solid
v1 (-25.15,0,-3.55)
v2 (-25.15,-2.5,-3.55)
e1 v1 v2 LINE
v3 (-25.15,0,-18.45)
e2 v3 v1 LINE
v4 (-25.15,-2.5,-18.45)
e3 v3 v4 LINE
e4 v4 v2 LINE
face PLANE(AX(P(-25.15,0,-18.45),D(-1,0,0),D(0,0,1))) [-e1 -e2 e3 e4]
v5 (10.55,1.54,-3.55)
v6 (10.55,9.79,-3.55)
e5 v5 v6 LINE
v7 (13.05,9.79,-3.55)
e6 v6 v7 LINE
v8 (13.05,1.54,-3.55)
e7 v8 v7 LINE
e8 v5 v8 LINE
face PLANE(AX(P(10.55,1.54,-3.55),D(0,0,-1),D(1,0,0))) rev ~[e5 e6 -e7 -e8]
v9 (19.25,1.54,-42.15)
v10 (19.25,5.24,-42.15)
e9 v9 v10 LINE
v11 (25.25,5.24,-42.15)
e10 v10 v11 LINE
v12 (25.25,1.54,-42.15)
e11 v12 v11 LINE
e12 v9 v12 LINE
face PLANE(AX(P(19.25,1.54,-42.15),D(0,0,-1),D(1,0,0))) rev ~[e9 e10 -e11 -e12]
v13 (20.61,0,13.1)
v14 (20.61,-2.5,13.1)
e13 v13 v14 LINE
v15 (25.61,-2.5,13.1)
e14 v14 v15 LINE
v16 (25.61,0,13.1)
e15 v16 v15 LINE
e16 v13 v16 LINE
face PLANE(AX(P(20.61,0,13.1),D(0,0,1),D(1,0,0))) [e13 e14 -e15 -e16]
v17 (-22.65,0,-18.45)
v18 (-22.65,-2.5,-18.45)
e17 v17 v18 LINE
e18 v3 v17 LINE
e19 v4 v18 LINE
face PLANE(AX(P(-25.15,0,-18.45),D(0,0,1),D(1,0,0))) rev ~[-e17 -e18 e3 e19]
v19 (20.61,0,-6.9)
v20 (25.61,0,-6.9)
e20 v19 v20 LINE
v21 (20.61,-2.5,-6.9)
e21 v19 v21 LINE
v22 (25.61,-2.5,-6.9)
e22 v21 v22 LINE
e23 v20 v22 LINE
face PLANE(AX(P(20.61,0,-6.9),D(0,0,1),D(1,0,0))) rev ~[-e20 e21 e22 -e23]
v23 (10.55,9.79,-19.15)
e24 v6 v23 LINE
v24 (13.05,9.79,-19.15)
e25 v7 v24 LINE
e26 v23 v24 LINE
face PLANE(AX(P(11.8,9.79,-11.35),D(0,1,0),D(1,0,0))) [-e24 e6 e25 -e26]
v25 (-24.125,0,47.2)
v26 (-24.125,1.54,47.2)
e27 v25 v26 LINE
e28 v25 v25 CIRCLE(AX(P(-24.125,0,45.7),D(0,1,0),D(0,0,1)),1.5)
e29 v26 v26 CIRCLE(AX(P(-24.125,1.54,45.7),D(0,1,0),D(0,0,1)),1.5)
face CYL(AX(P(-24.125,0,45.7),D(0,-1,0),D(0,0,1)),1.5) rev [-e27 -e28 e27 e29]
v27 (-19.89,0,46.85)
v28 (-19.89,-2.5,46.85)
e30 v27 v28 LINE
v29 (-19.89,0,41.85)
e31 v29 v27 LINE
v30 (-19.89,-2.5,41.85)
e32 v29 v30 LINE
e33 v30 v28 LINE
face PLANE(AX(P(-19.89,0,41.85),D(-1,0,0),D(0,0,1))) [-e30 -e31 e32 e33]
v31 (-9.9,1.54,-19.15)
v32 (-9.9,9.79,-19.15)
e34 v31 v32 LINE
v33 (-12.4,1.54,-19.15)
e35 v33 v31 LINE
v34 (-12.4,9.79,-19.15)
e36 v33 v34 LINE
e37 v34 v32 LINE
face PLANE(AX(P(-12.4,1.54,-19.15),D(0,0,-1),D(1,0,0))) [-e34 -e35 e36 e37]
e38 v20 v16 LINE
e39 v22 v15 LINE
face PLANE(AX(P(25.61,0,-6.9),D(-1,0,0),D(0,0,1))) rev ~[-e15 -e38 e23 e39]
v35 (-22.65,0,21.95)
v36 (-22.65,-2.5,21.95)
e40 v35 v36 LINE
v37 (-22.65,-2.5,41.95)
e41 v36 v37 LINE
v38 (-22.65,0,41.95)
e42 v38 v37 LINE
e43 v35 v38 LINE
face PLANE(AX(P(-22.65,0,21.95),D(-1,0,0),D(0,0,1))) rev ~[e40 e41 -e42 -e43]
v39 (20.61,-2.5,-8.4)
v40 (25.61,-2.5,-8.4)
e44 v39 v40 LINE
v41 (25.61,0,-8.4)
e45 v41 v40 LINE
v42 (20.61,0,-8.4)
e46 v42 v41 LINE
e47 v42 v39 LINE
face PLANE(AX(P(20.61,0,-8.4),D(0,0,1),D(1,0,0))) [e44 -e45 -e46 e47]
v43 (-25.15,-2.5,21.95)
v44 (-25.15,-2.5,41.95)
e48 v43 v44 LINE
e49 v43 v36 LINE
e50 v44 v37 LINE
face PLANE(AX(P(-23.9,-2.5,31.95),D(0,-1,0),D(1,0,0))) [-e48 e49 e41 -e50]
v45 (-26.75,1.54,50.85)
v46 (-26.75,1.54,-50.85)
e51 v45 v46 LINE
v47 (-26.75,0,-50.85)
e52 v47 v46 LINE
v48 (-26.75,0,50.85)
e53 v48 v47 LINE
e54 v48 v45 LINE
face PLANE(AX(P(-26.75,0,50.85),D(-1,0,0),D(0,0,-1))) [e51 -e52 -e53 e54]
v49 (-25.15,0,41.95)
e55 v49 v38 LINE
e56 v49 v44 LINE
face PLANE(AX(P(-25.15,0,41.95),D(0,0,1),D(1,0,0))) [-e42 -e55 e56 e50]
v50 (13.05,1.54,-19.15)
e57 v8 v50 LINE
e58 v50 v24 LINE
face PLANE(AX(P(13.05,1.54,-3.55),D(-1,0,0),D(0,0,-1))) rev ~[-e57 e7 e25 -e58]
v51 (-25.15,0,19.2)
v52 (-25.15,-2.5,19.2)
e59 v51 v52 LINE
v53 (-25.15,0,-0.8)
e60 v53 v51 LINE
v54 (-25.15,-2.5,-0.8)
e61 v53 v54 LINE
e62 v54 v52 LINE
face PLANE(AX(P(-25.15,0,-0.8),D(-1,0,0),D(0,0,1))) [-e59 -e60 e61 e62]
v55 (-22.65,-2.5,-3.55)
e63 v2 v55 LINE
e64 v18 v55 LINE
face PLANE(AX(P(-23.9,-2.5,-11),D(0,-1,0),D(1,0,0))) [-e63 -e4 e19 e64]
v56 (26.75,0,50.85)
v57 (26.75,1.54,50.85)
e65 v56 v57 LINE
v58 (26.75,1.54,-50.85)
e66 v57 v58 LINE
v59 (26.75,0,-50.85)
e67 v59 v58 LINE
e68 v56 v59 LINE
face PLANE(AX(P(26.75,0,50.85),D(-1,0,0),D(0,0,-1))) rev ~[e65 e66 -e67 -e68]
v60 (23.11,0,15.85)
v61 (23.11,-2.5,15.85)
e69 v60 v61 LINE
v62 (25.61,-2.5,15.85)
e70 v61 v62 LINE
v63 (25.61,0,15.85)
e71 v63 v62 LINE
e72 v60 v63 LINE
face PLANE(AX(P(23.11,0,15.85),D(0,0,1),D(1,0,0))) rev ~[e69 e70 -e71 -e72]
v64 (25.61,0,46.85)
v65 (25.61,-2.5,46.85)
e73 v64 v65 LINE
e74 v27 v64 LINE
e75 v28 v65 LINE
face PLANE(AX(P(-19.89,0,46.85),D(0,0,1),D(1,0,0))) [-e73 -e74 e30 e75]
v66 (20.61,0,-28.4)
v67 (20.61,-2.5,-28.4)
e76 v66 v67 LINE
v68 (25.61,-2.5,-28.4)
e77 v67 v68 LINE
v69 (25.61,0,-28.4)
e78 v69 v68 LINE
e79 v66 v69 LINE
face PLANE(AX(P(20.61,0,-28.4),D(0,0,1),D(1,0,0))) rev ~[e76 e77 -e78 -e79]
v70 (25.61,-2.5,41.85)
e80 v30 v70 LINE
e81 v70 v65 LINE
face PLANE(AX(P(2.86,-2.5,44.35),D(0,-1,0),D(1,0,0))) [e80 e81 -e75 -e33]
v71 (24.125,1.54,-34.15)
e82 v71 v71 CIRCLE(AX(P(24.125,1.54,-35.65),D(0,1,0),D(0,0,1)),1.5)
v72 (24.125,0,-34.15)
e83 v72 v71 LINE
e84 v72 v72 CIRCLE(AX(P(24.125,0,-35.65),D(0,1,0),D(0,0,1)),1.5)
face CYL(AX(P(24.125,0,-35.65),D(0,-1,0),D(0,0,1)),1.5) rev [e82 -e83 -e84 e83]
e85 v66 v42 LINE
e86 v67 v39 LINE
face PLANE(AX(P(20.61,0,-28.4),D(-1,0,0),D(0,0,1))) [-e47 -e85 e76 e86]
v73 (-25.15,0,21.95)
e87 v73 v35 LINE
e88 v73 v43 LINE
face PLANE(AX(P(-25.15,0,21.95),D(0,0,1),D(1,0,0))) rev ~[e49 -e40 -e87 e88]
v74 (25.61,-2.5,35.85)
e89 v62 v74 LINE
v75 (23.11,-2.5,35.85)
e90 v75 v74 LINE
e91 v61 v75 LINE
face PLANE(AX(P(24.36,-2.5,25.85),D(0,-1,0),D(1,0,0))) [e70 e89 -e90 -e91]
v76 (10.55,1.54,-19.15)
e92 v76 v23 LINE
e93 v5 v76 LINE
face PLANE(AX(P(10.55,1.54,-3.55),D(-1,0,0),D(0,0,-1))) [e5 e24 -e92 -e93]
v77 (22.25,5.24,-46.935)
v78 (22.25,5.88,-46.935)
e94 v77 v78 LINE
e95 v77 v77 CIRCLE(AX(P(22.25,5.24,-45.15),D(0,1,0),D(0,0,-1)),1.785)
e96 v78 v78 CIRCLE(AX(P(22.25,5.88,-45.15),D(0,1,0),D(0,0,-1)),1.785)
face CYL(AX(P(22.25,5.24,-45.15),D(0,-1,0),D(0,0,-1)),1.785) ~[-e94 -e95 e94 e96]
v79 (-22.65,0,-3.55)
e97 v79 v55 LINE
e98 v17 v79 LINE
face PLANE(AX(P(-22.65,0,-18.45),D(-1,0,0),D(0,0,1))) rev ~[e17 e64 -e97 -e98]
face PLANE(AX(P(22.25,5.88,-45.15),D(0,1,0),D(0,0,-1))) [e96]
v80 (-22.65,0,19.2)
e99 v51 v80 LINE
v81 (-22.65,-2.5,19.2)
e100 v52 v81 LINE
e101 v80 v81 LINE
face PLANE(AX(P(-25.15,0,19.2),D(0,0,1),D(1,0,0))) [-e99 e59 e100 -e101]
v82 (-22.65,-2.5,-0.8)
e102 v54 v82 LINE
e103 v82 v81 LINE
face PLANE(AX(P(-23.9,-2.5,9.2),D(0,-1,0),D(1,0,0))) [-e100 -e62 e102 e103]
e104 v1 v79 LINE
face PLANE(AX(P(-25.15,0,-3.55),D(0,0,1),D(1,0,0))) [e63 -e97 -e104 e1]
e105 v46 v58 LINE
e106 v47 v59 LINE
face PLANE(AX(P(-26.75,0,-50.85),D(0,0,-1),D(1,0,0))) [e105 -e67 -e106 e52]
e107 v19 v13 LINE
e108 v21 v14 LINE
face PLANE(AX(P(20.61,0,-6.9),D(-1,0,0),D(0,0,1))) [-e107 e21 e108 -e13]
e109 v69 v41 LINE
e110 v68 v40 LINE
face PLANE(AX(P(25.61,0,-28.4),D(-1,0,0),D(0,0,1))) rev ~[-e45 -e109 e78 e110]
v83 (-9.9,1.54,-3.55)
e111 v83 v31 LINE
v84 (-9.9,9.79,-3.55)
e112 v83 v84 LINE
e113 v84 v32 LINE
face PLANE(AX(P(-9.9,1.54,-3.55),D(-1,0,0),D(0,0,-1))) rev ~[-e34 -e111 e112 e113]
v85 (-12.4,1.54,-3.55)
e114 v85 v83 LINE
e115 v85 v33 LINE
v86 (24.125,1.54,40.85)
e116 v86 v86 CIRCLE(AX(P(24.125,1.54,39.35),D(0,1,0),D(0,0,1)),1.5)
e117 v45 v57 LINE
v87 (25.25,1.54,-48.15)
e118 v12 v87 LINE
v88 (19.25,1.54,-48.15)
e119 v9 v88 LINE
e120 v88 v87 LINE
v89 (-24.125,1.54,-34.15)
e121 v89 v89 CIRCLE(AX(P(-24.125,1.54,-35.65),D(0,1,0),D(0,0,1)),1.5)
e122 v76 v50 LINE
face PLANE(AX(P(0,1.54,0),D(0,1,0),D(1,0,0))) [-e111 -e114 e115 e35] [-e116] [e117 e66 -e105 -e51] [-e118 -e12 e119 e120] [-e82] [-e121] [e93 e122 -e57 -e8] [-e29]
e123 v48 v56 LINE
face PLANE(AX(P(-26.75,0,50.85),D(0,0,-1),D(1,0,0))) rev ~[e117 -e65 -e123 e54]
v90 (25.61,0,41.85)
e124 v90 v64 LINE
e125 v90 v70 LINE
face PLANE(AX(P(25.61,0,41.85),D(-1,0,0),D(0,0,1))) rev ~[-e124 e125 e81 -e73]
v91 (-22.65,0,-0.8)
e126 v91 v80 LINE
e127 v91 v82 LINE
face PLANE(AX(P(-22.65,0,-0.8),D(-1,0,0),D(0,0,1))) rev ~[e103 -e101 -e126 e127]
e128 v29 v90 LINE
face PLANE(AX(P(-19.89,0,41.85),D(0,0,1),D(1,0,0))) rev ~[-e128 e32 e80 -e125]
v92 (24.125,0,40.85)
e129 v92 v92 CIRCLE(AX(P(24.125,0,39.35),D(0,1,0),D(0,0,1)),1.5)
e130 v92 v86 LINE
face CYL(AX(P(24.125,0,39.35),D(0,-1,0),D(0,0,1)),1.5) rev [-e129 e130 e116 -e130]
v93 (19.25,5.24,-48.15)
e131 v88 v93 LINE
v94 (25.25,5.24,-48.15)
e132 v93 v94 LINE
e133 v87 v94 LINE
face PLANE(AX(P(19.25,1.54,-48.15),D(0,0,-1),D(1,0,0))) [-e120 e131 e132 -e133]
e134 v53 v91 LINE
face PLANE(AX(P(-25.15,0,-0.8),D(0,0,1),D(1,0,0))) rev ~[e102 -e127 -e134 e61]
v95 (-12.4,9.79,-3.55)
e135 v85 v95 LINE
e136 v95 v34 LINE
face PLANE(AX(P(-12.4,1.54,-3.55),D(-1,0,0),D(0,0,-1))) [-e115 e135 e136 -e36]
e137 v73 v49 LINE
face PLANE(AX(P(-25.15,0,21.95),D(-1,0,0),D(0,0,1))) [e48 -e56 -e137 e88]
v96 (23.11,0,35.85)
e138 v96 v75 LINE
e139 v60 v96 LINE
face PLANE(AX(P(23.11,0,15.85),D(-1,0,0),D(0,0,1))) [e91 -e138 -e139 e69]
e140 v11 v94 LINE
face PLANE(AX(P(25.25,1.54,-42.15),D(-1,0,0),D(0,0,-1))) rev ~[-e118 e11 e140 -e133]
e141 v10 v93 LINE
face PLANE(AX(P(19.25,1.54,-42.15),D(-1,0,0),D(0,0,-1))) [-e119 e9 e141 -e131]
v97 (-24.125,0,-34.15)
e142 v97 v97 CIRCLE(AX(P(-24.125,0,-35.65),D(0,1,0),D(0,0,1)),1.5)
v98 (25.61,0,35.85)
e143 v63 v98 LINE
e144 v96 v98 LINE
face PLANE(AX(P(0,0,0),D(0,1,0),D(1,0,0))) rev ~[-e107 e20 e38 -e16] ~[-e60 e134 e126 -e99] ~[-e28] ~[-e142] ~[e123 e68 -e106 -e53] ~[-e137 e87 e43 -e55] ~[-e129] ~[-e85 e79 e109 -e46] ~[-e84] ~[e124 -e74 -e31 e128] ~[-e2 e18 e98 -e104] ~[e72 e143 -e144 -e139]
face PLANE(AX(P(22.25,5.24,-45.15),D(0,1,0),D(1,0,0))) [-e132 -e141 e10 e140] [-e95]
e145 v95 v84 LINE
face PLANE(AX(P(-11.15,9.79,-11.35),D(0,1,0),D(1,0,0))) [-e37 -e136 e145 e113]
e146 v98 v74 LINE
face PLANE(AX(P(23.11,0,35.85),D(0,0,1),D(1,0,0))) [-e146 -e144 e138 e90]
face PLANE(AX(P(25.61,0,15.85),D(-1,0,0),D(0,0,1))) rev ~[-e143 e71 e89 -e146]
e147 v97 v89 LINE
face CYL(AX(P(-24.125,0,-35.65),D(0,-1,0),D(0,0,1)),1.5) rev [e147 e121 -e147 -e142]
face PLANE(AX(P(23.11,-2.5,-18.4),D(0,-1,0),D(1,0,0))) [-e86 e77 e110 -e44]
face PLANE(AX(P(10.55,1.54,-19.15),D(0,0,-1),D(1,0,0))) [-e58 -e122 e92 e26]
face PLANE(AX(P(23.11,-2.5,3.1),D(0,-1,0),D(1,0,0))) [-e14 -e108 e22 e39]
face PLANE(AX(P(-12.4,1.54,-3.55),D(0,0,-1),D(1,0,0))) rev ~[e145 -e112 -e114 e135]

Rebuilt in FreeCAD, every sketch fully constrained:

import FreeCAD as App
import Part
import Sketcher

V = App.Vector

doc = App.newDocument("Part")
body = doc.addObject("PartDesign::Body", "Body")

sketch1 = body.newObject("Sketcher::SketchObject", "Sketch")
sketch1.AttachmentSupport = (doc.getObject("XZ_Plane"), [""])
sketch1.MapMode = "FlatFace"
sketch1.addGeometry([
    Part.LineSegment(V(-26.8, -50.9, 0), V(-26.8, 50.9, 0)),
    Part.LineSegment(V(-26.8, 50.9, 0), V(26.8, 50.9, 0)),
    Part.LineSegment(V(26.8, 50.9, 0), V(26.8, -50.9, 0)),
    Part.LineSegment(V(26.8, -50.9, 0), V(-26.8, -50.9, 0)),
    Part.Circle(V(-24.1, 45.7, 0), V(0, 0, 1), 1.5),
    Part.Circle(V(24.1, 39.4, 0), V(0, 0, 1), 1.5),
    Part.Circle(V(-24.1, -35.6, 0), V(0, 0, 1), 1.5),
    Part.Circle(V(24.1, -35.6, 0), V(0, 0, 1), 1.5),
], False)
sketch1.addConstraint([
    Sketcher.Constraint("Coincident", 0, 2, 1, 1),
    Sketcher.Constraint("Coincident", 1, 2, 2, 1),
    Sketcher.Constraint("Coincident", 2, 2, 3, 1),
    Sketcher.Constraint("Coincident", 3, 2, 0, 1),
    Sketcher.Constraint("Vertical", 0),
    Sketcher.Constraint("Horizontal", 1),
    Sketcher.Constraint("Vertical", 2),
    Sketcher.Constraint("Horizontal", 3),
    Sketcher.Constraint("Equal", 4, 5),
    Sketcher.Constraint("Equal", 5, 6),
    Sketcher.Constraint("Equal", 6, 7),
    Sketcher.Constraint("Symmetric", 0, 2, 2, 2, -1, 1),
    Sketcher.Constraint("Symmetric", 6, 3, 7, 3, -2),
    Sketcher.Constraint("Vertical", 4, 3, 6, 3),
    Sketcher.Constraint("Vertical", 5, 3, 7, 3),
    Sketcher.Constraint("Diameter", 4, 3.0),
    Sketcher.Constraint("DistanceX", 1, 1, 1, 2, 53.5),
    Sketcher.Constraint("DistanceY", 0, 1, 0, 2, 101.7),
    Sketcher.Constraint("DistanceY", 6, 3, 5, 3, 75.0),
    Sketcher.Constraint("DistanceY", -1, 1, 4, 3, 45.7),
    Sketcher.Constraint("DistanceY", 5, 3, 0, 2, 11.5),
    Sketcher.Constraint("DistanceX", 4, 3, 5, 3, 48.25),
])
pad1 = body.newObject("PartDesign::Pad", "Pad")
pad1.Profile = sketch1
pad1.Length = 1.54
pad1.Reversed = True

sketch2 = body.newObject("Sketcher::SketchObject", "Sketch001")
sketch2.AttachmentSupport = (doc.getObject("XZ_Plane"), [""])
sketch2.MapMode = "FlatFace"
sketch2.AttachmentOffset = App.Placement(V(0, 0, -1.54), App.Rotation())
sketch2.addGeometry([
    Part.LineSegment(V(10.6, -19.1, 0), V(10.6, -3.5, 0)),
    Part.LineSegment(V(10.6, -3.5, 0), V(13.1, -3.5, 0)),
    Part.LineSegment(V(13.1, -3.5, 0), V(13.1, -19.1, 0)),
    Part.LineSegment(V(13.1, -19.1, 0), V(10.6, -19.1, 0)),
    Part.LineSegment(V(-12.4, -19.1, 0), V(-12.4, -3.5, 0)),
    Part.LineSegment(V(-12.4, -3.5, 0), V(-9.9, -3.5, 0)),
    Part.LineSegment(V(-9.9, -3.5, 0), V(-9.9, -19.1, 0)),
    Part.LineSegment(V(-9.9, -19.1, 0), V(-12.4, -19.1, 0)),
], False)
sketch2.addConstraint([
    Sketcher.Constraint("Coincident", 0, 2, 1, 1),
    Sketcher.Constraint("Coincident", 1, 2, 2, 1),
    Sketcher.Constraint("Coincident", 2, 2, 3, 1),
    Sketcher.Constraint("Coincident", 3, 2, 0, 1),
    Sketcher.Constraint("Coincident", 4, 2, 5, 1),
    Sketcher.Constraint("Coincident", 5, 2, 6, 1),
    Sketcher.Constraint("Coincident", 6, 2, 7, 1),
    Sketcher.Constraint("Coincident", 7, 2, 4, 1),
    Sketcher.Constraint("Vertical", 0),
    Sketcher.Constraint("Horizontal", 1),
    Sketcher.Constraint("Vertical", 2),
    Sketcher.Constraint("Horizontal", 3),
    Sketcher.Constraint("Vertical", 4),
    Sketcher.Constraint("Horizontal", 5),
    Sketcher.Constraint("Vertical", 6),
    Sketcher.Constraint("Horizontal", 7),
    Sketcher.Constraint("Horizontal", 1, 2, 4, 2),
    Sketcher.Constraint("Horizontal", 3, 2, 6, 2),
    Sketcher.Constraint("Equal", 3, 5),
    Sketcher.Constraint("DistanceX", 1, 1, 1, 2, 2.5),
    Sketcher.Constraint("DistanceY", 0, 1, 0, 2, 15.6),
    Sketcher.Constraint("DistanceX", 4, 2, -1, 1, 12.4),
    Sketcher.Constraint("DistanceX", -1, 1, 0, 2, 10.55),
    Sketcher.Constraint("DistanceY", 0, 2, -1, 1, 3.55),
])
pad2 = body.newObject("PartDesign::Pad", "Pad001")
pad2.Profile = sketch2
pad2.Length = 8.25
pad2.Reversed = True

sketch3 = body.newObject("Sketcher::SketchObject", "Sketch002")
sketch3.AttachmentSupport = (doc.getObject("XZ_Plane"), [""])
sketch3.MapMode = "FlatFace"
sketch3.AttachmentOffset = App.Placement(V(0, 0, -1.54), App.Rotation())
sketch3.addGeometry([
    Part.LineSegment(V(19, -48, 0), V(19, -42, 0)),
    Part.LineSegment(V(19, -42, 0), V(25, -42, 0)),
    Part.LineSegment(V(25, -42, 0), V(25, -48, 0)),
    Part.LineSegment(V(25, -48, 0), V(19, -48, 0)),
], False)
sketch3.addConstraint([
    Sketcher.Constraint("Coincident", 0, 2, 1, 1),
    Sketcher.Constraint("Coincident", 1, 2, 2, 1),
    Sketcher.Constraint("Coincident", 2, 2, 3, 1),
    Sketcher.Constraint("Coincident", 3, 2, 0, 1),
    Sketcher.Constraint("Vertical", 0),
    Sketcher.Constraint("Horizontal", 1),
    Sketcher.Constraint("Vertical", 2),
    Sketcher.Constraint("Horizontal", 3),
    Sketcher.Constraint("Equal", 3, 0),
    Sketcher.Constraint("DistanceX", 1, 1, 1, 2, 6.0),
    Sketcher.Constraint("DistanceX", -1, 1, 0, 2, 19.25),
    Sketcher.Constraint("DistanceY", 0, 2, -1, 1, 42.15),
])
pad3 = body.newObject("PartDesign::Pad", "Pad002")
pad3.Profile = sketch3
pad3.Length = 3.7
pad3.Reversed = True

sketch4 = body.newObject("Sketcher::SketchObject", "Sketch003")
sketch4.AttachmentSupport = (doc.getObject("XZ_Plane"), [""])
sketch4.MapMode = "FlatFace"
sketch4.AttachmentOffset = App.Placement(V(0, 0, -5.24), App.Rotation())
sketch4.addGeometry(Part.Circle(V(22.2, -45.1, 0), V(0, 0, 1), 1.8), False)
sketch4.addConstraint([
    Sketcher.Constraint("Diameter", 0, 3.57),
    Sketcher.Constraint("DistanceX", -1, 1, 0, 3, 22.25),
    Sketcher.Constraint("DistanceY", 0, 3, -1, 1, 45.15),
])
pad4 = body.newObject("PartDesign::Pad", "Pad003")
pad4.Profile = sketch4
pad4.Length = 0.64
pad4.Reversed = True

sketch5 = body.newObject("Sketcher::SketchObject", "Sketch004")
sketch5.AttachmentSupport = (doc.getObject("XZ_Plane"), [""])
sketch5.MapMode = "FlatFace"
sketch5.addGeometry([
    Part.LineSegment(V(-19.9, 46.9, 0), V(-19.9, 41.9, 0)),
    Part.LineSegment(V(-19.9, 41.9, 0), V(25.6, 41.9, 0)),
    Part.LineSegment(V(25.6, 41.9, 0), V(25.6, 46.9, 0)),
    Part.LineSegment(V(25.6, 46.9, 0), V(-19.9, 46.9, 0)),
    Part.LineSegment(V(23.1, 35.9, 0), V(23.1, 15.8, 0)),
    Part.LineSegment(V(23.1, 15.8, 0), V(25.6, 15.8, 0)),
    Part.LineSegment(V(25.6, 15.8, 0), V(25.6, 35.9, 0)),
    Part.LineSegment(V(25.6, 35.9, 0), V(23.1, 35.9, 0)),
    Part.LineSegment(V(20.6, 13.1, 0), V(20.6, -6.9, 0)),
    Part.LineSegment(V(20.6, -6.9, 0), V(25.6, -6.9, 0)),
    Part.LineSegment(V(25.6, -6.9, 0), V(25.6, 13.1, 0)),
    Part.LineSegment(V(25.6, 13.1, 0), V(20.6, 13.1, 0)),
    Part.LineSegment(V(20.6, -8.4, 0), V(20.6, -28.4, 0)),
    Part.LineSegment(V(20.6, -28.4, 0), V(25.6, -28.4, 0)),
    Part.LineSegment(V(25.6, -28.4, 0), V(25.6, -8.4, 0)),
    Part.LineSegment(V(25.6, -8.4, 0), V(20.6, -8.4, 0)),
    Part.LineSegment(V(-25.1, 42, 0), V(-25.1, 21.9, 0)),
    Part.LineSegment(V(-25.1, 21.9, 0), V(-22.6, 21.9, 0)),
    Part.LineSegment(V(-22.6, 21.9, 0), V(-22.6, 42, 0)),
    Part.LineSegment(V(-22.6, 42, 0), V(-25.1, 42, 0)),
    Part.LineSegment(V(-25.1, 19.2, 0), V(-25.1, -0.8, 0)),
    Part.LineSegment(V(-25.1, -0.8, 0), V(-22.6, -0.8, 0)),
    Part.LineSegment(V(-22.6, -0.8, 0), V(-22.6, 19.2, 0)),
    Part.LineSegment(V(-22.6, 19.2, 0), V(-25.1, 19.2, 0)),
    Part.LineSegment(V(-25.1, -3.5, 0), V(-25.1, -18.4, 0)),
    Part.LineSegment(V(-25.1, -18.4, 0), V(-22.6, -18.4, 0)),
    Part.LineSegment(V(-22.6, -18.4, 0), V(-22.6, -3.5, 0)),
    Part.LineSegment(V(-22.6, -3.5, 0), V(-25.1, -3.5, 0)),
], False)
sketch5.addConstraint([
    Sketcher.Constraint("Coincident", 0, 2, 1, 1),
    Sketcher.Constraint("Coincident", 1, 2, 2, 1),
    Sketcher.Constraint("Coincident", 2, 2, 3, 1),
    Sketcher.Constraint("Coincident", 3, 2, 0, 1),
    Sketcher.Constraint("Coincident", 4, 2, 5, 1),
    Sketcher.Constraint("Coincident", 5, 2, 6, 1),
    Sketcher.Constraint("Coincident", 6, 2, 7, 1),
    Sketcher.Constraint("Coincident", 7, 2, 4, 1),
    Sketcher.Constraint("Coincident", 8, 2, 9, 1),
    Sketcher.Constraint("Coincident", 9, 2, 10, 1),
    Sketcher.Constraint("Coincident", 10, 2, 11, 1),
    Sketcher.Constraint("Coincident", 11, 2, 8, 1),
    Sketcher.Constraint("Coincident", 12, 2, 13, 1),
    Sketcher.Constraint("Coincident", 13, 2, 14, 1),
    Sketcher.Constraint("Coincident", 14, 2, 15, 1),
    Sketcher.Constraint("Coincident", 15, 2, 12, 1),
    Sketcher.Constraint("Coincident", 16, 2, 17, 1),
    Sketcher.Constraint("Coincident", 17, 2, 18, 1),
    Sketcher.Constraint("Coincident", 18, 2, 19, 1),
    Sketcher.Constraint("Coincident", 19, 2, 16, 1),
    Sketcher.Constraint("Coincident", 20, 2, 21, 1),
    Sketcher.Constraint("Coincident", 21, 2, 22, 1),
    Sketcher.Constraint("Coincident", 22, 2, 23, 1),
    Sketcher.Constraint("Coincident", 23, 2, 20, 1),
    Sketcher.Constraint("Coincident", 24, 2, 25, 1),
    Sketcher.Constraint("Coincident", 25, 2, 26, 1),
    Sketcher.Constraint("Coincident", 26, 2, 27, 1),
    Sketcher.Constraint("Coincident", 27, 2, 24, 1),
    Sketcher.Constraint("Vertical", 0),
    Sketcher.Constraint("Horizontal", 1),
    Sketcher.Constraint("Vertical", 2),
    Sketcher.Constraint("Horizontal", 3),
    Sketcher.Constraint("Vertical", 4),
    Sketcher.Constraint("Horizontal", 5),
    Sketcher.Constraint("Vertical", 6),
    Sketcher.Constraint("Horizontal", 7),
    Sketcher.Constraint("Vertical", 8),
    Sketcher.Constraint("Horizontal", 9),
    Sketcher.Constraint("Vertical", 10),
    Sketcher.Constraint("Horizontal", 11),
    Sketcher.Constraint("Vertical", 12),
    Sketcher.Constraint("Horizontal", 13),
    Sketcher.Constraint("Vertical", 14),
    Sketcher.Constraint("Horizontal", 15),
    Sketcher.Constraint("Vertical", 16),
    Sketcher.Constraint("Horizontal", 17),
    Sketcher.Constraint("Vertical", 18),
    Sketcher.Constraint("Horizontal", 19),
    Sketcher.Constraint("Vertical", 20),
    Sketcher.Constraint("Horizontal", 21),
    Sketcher.Constraint("Vertical", 22),
    Sketcher.Constraint("Horizontal", 23),
    Sketcher.Constraint("Vertical", 24),
    Sketcher.Constraint("Horizontal", 25),
    Sketcher.Constraint("Vertical", 26),
    Sketcher.Constraint("Horizontal", 27),
    Sketcher.Constraint("Vertical", 2, 2, 5, 2),
    Sketcher.Constraint("Vertical", 6, 2, 9, 2),
    Sketcher.Constraint("Vertical", 11, 2, 12, 2),
    Sketcher.Constraint("Vertical", 10, 2, 13, 2),
    Sketcher.Constraint("Vertical", 19, 2, 20, 2),
    Sketcher.Constraint("Vertical", 18, 2, 21, 2),
    Sketcher.Constraint("Vertical", 23, 2, 24, 2),
    Sketcher.Constraint("Vertical", 22, 2, 25, 2),
    Sketcher.Constraint("Equal", 7, 17),
    Sketcher.Constraint("Equal", 15, 0),
    Sketcher.Constraint("Equal", 6, 8),
    Sketcher.Constraint("Equal", 10, 12),
    Sketcher.Constraint("Equal", 14, 16),
    Sketcher.Constraint("Equal", 18, 20),
    Sketcher.Constraint("DistanceX", 9, 1, 9, 2, 5.0),
    Sketcher.Constraint("DistanceY", 4, 2, 4, 1, 20.0),
    Sketcher.Constraint("DistanceX", 1, 1, 1, 2, 45.5),
    Sketcher.Constraint("DistanceX", 5, 1, 5, 2, 2.5),
    Sketcher.Constraint("DistanceY", 24, 2, 24, 1, 14.9),
    Sketcher.Constraint("DistanceY", 4, 2, 1, 2, 26.0),
    Sketcher.Constraint("DistanceY", 8, 2, -1, 1, 6.9),
    Sketcher.Constraint("DistanceY", 12, 2, -1, 1, 28.4),
    Sketcher.Constraint("DistanceY", 20, 2, -1, 1, 0.8),
    Sketcher.Constraint("DistanceY", 16, 2, 0, 2, 19.9),
    Sketcher.Constraint("DistanceY", 24, 2, 16, 2, 40.4),
    Sketcher.Constraint("DistanceX", 0, 2, -1, 1, 19.89),
    Sketcher.Constraint("DistanceY", -1, 1, 0, 2, 41.85),
    Sketcher.Constraint("DistanceX", 16, 2, -1, 1, 25.15),
])
pad5 = body.newObject("PartDesign::Pad", "Pad004")
pad5.Profile = sketch5
pad5.Length = 2.5

doc.recompute()
